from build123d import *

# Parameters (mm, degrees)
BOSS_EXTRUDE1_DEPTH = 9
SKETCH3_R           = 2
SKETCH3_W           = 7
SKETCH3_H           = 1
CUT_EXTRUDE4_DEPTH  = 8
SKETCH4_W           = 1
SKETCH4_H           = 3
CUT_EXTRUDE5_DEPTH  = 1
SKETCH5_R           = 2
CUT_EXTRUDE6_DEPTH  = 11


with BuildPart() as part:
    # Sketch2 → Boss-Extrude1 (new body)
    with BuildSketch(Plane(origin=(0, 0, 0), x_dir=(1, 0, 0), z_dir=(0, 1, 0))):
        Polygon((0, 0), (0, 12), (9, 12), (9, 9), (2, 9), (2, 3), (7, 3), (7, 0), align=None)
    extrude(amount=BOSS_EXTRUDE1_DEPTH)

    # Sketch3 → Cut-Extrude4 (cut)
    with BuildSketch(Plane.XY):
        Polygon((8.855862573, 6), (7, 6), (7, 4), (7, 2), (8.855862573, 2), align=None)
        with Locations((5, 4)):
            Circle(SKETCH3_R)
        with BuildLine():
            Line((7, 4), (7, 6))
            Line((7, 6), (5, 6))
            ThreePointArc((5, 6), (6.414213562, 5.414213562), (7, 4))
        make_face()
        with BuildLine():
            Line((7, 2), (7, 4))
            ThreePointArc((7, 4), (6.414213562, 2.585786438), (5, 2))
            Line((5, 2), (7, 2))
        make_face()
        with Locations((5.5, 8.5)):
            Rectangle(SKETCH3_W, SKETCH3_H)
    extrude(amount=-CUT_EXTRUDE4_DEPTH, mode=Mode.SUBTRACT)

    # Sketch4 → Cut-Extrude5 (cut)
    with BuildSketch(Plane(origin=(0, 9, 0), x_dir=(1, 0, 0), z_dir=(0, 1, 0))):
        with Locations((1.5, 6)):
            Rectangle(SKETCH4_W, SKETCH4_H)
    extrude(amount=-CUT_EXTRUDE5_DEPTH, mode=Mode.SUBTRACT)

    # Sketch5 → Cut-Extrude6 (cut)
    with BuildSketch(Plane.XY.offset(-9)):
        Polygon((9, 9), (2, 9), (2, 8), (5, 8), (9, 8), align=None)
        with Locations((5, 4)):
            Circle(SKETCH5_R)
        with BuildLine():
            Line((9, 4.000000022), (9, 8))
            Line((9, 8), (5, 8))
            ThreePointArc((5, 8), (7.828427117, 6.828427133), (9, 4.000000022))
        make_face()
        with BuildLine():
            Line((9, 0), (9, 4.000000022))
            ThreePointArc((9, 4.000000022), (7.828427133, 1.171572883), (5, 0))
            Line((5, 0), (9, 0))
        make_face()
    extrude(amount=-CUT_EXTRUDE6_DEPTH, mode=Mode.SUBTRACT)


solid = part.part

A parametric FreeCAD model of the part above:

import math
import FreeCAD as App
import Part
import Sketcher

V = App.Vector

doc = App.newDocument("Part")
body = doc.addObject("PartDesign::Body", "Body")

sketch1 = body.newObject("Sketcher::SketchObject", "Sketch")
sketch1.AttachmentSupport = (doc.getObject("XZ_Plane"), [""])
sketch1.MapMode = "FlatFace"
sketch1.addGeometry([
    Part.LineSegment(V(0, -12, 0), V(0, 0, 0)),
    Part.LineSegment(V(0, 0, 0), V(7, 0, 0)),
    Part.LineSegment(V(7, 0, 0), V(7, -3, 0)),
    Part.LineSegment(V(7, -3, 0), V(2, -3, 0)),
    Part.LineSegment(V(2, -3, 0), V(2, -9, 0)),
    Part.LineSegment(V(2, -9, 0), V(9, -9, 0)),
    Part.LineSegment(V(9, -9, 0), V(9, -12, 0)),
    Part.LineSegment(V(9, -12, 0), V(0, -12, 0)),
], False)
sketch1.addConstraint([
    Sketcher.Constraint("Coincident", 0, 2, 1, 1),
    Sketcher.Constraint("Coincident", 1, 2, 2, 1),
    Sketcher.Constraint("Coincident", 2, 2, 3, 1),
    Sketcher.Constraint("Coincident", 3, 2, 4, 1),
    Sketcher.Constraint("Coincident", 4, 2, 5, 1),
    Sketcher.Constraint("Coincident", 5, 2, 6, 1),
    Sketcher.Constraint("Coincident", 6, 2, 7, 1),
    Sketcher.Constraint("Coincident", 7, 2, 0, 1),
    Sketcher.Constraint("Vertical", 0),
    Sketcher.Constraint("Horizontal", 1),
    Sketcher.Constraint("Vertical", 2),
    Sketcher.Constraint("Horizontal", 3),
    Sketcher.Constraint("Vertical", 4),
    Sketcher.Constraint("Horizontal", 5),
    Sketcher.Constraint("Vertical", 6),
    Sketcher.Constraint("Horizontal", 7),
    Sketcher.Constraint("Coincident", 0, 2, -1, 1),
    Sketcher.Constraint("Equal", 1, 5),
    Sketcher.Constraint("Equal", 2, 6),
    Sketcher.Constraint("DistanceX", 1, 1, 1, 2, 7.0),
    Sketcher.Constraint("DistanceX", 3, 2, 3, 1, 5.0),
    Sketcher.Constraint("DistanceY", 0, 1, 0, 2, 12.0),
    Sketcher.Constraint("DistanceY", 2, 2, 2, 1, 3.0),
])
pad1 = body.newObject("PartDesign::Pad", "Pad")
pad1.Profile = sketch1
pad1.Length = 9
pad1.Reversed = True

sketch2 = body.newObject("Sketcher::SketchObject", "Sketch001")
sketch2.AttachmentSupport = (doc.getObject("XY_Plane"), [""])
sketch2.MapMode = "FlatFace"
sketch2.addGeometry([
    Part.LineSegment(V(8.9, 6, 0), V(5, 6, 0)),
    Part.ArcOfCircle(Part.Circle(V(5, 4, 0), V(0, 0, 1), 2), math.radians(90), math.radians(270)),
    Part.LineSegment(V(5, 2, 0), V(8.9, 2, 0)),
    Part.LineSegment(V(8.9, 2, 0), V(8.9, 6, 0)),
    Part.LineSegment(V(2, 9, 0), V(2, 8, 0)),
    Part.LineSegment(V(2, 8, 0), V(9, 8, 0)),
    Part.LineSegment(V(9, 8, 0), V(9, 9, 0)),
    Part.LineSegment(V(9, 9, 0), V(2, 9, 0)),
], False)
sketch2.addConstraint([
    Sketcher.Constraint("Tangent", 0, 2, 1, 1),
    Sketcher.Constraint("Tangent", 1, 2, 2, 1),
    Sketcher.Constraint("Coincident", 2, 2, 3, 1),
    Sketcher.Constraint("Coincident", 3, 2, 0, 1),
    Sketcher.Constraint("Coincident", 4, 2, 5, 1),
    Sketcher.Constraint("Coincident", 5, 2, 6, 1),
    Sketcher.Constraint("Coincident", 6, 2, 7, 1),
    Sketcher.Constraint("Coincident", 7, 2, 4, 1),
    Sketcher.Constraint("Horizontal", 0),
    Sketcher.Constraint("Horizontal", 2),
    Sketcher.Constraint("Vertical", 3),
    Sketcher.Constraint("Vertical", 4),
    Sketcher.Constraint("Horizontal", 5),
    Sketcher.Constraint("Vertical", 6),
    Sketcher.Constraint("Horizontal", 7),
    Sketcher.Constraint("Radius", 1, 2.0),
    Sketcher.Constraint("DistanceX", 5, 1, 5, 2, 7.0),
    Sketcher.Constraint("DistanceY", 4, 2, 4, 1, 1.0),
    Sketcher.Constraint("DistanceX", -1, 1, 1, 3, 5.0),
    Sketcher.Constraint("DistanceY", -1, 1, 1, 3, 4.0),
    Sketcher.Constraint("DistanceX", -1, 1, 4, 2, 2.0),
    Sketcher.Constraint("DistanceY", -1, 1, 4, 2, 8.0),
    Sketcher.Constraint("DistanceX", 0, 2, 0, 1, 3.855863),
])
pocket1 = body.newObject("PartDesign::Pocket", "Pocket")
pocket1.Profile = sketch2
pocket1.Length = 8

sketch3 = body.newObject("Sketcher::SketchObject", "Sketch002")
sketch3.AttachmentSupport = (doc.getObject("XZ_Plane"), [""])
sketch3.MapMode = "FlatFace"
sketch3.AttachmentOffset = App.Placement(V(0, 0, -9), App.Rotation())
sketch3.addGeometry([
    Part.LineSegment(V(1, -7.5, 0), V(1, -4.5, 0)),
    Part.LineSegment(V(1, -4.5, 0), V(2, -4.5, 0)),
    Part.LineSegment(V(2, -4.5, 0), V(2, -7.5, 0)),
    Part.LineSegment(V(2, -7.5, 0), V(1, -7.5, 0)),
], False)
sketch3.addConstraint([
    Sketcher.Constraint("Coincident", 0, 2, 1, 1),
    Sketcher.Constraint("Coincident", 1, 2, 2, 1),
    Sketcher.Constraint("Coincident", 2, 2, 3, 1),
    Sketcher.Constraint("Coincident", 3, 2, 0, 1),
    Sketcher.Constraint("Vertical", 0),
    Sketcher.Constraint("Horizontal", 1),
    Sketcher.Constraint("Vertical", 2),
    Sketcher.Constraint("Horizontal", 3),
    Sketcher.Constraint("DistanceX", 1, 1, 1, 2, 1.0),
    Sketcher.Constraint("DistanceY", 0, 1, 0, 2, 3.0),
    Sketcher.Constraint("DistanceX", -1, 1, 0, 2, 1.0),
    Sketcher.Constraint("DistanceY", 0, 2, -1, 1, 4.5),
])
pocket2 = body.newObject("PartDesign::Pocket", "Pocket001")
pocket2.Profile = sketch3
pocket2.Length = 1
pocket2.Reversed = True

sketch4 = body.newObject("Sketcher::SketchObject", "Sketch003")
sketch4.AttachmentSupport = (doc.getObject("XY_Plane"), [""])
sketch4.MapMode = "FlatFace"
sketch4.AttachmentOffset = App.Placement(V(0, 0, -9), App.Rotation())
sketch4.addGeometry([
    Part.LineSegment(V(9, 9, 0), V(2, 9, 0)),
    Part.LineSegment(V(2, 9, 0), V(2, 8, 0)),
    Part.LineSegment(V(2, 8, 0), V(5, 8, 0)),
    Part.ArcOfCircle(Part.Circle(V(5, 4, 0), V(0, 0, 1), 4), math.radians(0), math.radians(90)),
    Part.LineSegment(V(9, 4, 0), V(9, 9, 0)),
    Part.Circle(V(5, 4, 0), V(0, 0, 1), 2),
    Part.LineSegment(V(9, 0, 0), V(9, 4, 0)),
    Part.ArcOfCircle(Part.Circle(V(5, 4, 0), V(0, 0, 1), 4), math.radians(-90), math.radians(0)),
    Part.LineSegment(V(5, 0, 0), V(9, 0, 0)),
], False)
sketch4.addConstraint([
    Sketcher.Constraint("Coincident", 0, 2, 1, 1),
    Sketcher.Constraint("Coincident", 1, 2, 2, 1),
    Sketcher.Constraint("Tangent", 2, 2, 3, 2),
    Sketcher.Constraint("Tangent", 3, 1, 4, 1),
    Sketcher.Constraint("Coincident", 4, 2, 0, 1),
    Sketcher.Constraint("Tangent", 6, 2, 7, 2),
    Sketcher.Constraint("Tangent", 7, 1, 8, 1),
    Sketcher.Constraint("Coincident", 8, 2, 6, 1),
    Sketcher.Constraint("Horizontal", 0),
    Sketcher.Constraint("Vertical", 1),
    Sketcher.Constraint("Horizontal", 2),
    Sketcher.Constraint("Vertical", 4),
    Sketcher.Constraint("Vertical", 6),
    Sketcher.Constraint("Horizontal", 8),
    Sketcher.Constraint("Coincident", 5, 3, 3, 3),
    Sketcher.Constraint("Coincident", 7, 3, 3, 3),
    Sketcher.Constraint("Equal", 3, 7),
    Sketcher.Constraint("PointOnObject", 7, 1, -1),
    Sketcher.Constraint("Diameter", 5, 4.0),
    Sketcher.Constraint("Radius", 3, 4.0),
    Sketcher.Constraint("DistanceX", 0, 2, 0, 1, 7.0),
    Sketcher.Constraint("DistanceY", 1, 2, 1, 1, 1.0),
    Sketcher.Constraint("DistanceX", -1, 1, 3, 3, 5.0),
])
pocket3 = body.newObject("PartDesign::Pocket", "Pocket002")
pocket3.Profile = sketch4
pocket3.Length = 11

doc.recompute()
